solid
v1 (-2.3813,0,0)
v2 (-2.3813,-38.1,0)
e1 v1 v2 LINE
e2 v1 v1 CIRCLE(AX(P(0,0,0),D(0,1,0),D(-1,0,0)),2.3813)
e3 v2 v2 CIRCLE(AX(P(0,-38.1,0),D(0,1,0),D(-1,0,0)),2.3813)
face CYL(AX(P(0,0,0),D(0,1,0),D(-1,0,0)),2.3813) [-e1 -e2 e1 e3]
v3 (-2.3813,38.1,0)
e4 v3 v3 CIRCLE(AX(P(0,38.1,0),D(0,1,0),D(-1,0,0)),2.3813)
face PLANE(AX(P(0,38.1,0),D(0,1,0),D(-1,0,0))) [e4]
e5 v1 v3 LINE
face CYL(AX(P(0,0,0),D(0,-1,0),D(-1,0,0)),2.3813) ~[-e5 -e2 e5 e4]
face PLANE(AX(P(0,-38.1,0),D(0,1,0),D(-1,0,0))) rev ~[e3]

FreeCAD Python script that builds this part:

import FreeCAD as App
import Part
import Sketcher
Q = App.Units.Quantity

doc = App.newDocument("Part")
body = doc.addObject("PartDesign::Body", "Body")

# Sketch on XZ plane
sketch1 = body.newObject("Sketcher::SketchObject", "Sketch")
sketch1.AttachmentSupport = (doc.getObject("XZ_Plane"), [""])
sketch1.MapMode = "FlatFace"
sketch1.addGeometry(Part.Circle(App.Vector(0, 0, 0), App.Vector(0, 0, 1), 2.3813), False)
sketch1.addConstraint(Sketcher.Constraint("Coincident", 0, 3, -1, 1))
sketch1.addConstraint(Sketcher.Constraint("Diameter", 0, Q("0.1875 in")))
pad1 = body.newObject("PartDesign::Pad", "Pad")
pad1.Profile = sketch1
pad1.Length = Q("3 in")
pad1.Midplane = True

doc.recompute()
